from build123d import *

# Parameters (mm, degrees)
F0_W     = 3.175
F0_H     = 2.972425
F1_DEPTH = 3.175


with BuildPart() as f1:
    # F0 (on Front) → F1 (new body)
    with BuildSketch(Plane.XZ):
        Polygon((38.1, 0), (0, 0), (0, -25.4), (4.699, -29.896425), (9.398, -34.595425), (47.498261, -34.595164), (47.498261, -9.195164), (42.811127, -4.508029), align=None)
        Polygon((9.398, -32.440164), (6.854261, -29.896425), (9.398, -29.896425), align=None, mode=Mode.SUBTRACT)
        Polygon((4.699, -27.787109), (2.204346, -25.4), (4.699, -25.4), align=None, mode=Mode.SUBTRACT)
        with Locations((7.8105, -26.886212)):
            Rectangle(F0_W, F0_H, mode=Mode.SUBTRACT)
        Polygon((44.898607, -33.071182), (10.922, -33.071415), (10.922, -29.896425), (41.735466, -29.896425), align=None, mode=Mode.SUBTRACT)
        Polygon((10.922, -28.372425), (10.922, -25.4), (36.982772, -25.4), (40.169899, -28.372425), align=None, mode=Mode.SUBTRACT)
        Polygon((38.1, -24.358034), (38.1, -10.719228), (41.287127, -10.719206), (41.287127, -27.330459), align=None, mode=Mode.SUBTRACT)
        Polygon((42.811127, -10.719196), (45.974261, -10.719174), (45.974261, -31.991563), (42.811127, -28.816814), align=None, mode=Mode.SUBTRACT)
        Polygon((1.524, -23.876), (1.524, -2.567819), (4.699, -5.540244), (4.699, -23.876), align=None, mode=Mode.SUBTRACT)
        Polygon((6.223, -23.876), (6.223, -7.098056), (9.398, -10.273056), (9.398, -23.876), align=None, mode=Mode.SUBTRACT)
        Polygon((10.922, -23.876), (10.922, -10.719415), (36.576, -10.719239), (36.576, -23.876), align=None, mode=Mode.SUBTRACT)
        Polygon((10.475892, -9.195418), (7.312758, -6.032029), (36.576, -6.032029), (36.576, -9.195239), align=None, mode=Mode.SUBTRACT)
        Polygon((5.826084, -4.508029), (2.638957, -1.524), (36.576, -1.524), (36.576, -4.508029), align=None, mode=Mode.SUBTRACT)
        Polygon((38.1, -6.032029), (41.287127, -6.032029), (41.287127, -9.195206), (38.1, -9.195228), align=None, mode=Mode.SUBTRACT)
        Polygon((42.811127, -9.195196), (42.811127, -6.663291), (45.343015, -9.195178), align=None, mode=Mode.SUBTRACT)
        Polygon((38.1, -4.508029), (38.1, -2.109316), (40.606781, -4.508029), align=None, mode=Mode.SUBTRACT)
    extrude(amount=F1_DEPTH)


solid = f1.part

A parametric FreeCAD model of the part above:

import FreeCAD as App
import Part
import Sketcher

V = App.Vector
Q = App.Units.Quantity

doc = App.newDocument("Part")
body = doc.addObject("PartDesign::Body", "Body")

# Sketch on XZ plane
sketch1 = body.newObject("Sketcher::SketchObject", "Sketch")
sketch1.AttachmentSupport = (doc.getObject("XZ_Plane"), [""])
sketch1.MapMode = "FlatFace"
sketch1.addGeometry([
    Part.LineSegment(V(38.1, 0, 0), V(0, 0, 0)),  # 0
    Part.LineSegment(V(0, 0, 0), V(0, -25.4, 0)),  # 1
    Part.LineSegment(V(0, -25.4, 0), V(4.699, -29.896425, 0)),  # 2
    Part.LineSegment(V(4.699, -29.896425, 0), V(9.398, -34.595425, 0)),  # 3
    Part.LineSegment(V(9.398, -34.595425, 0), V(47.498261, -34.595164, 0)),  # 4
    Part.LineSegment(V(47.498261, -34.595164, 0), V(47.498261, -9.195164, 0)),  # 5
    Part.LineSegment(V(47.498261, -9.195164, 0), V(42.811127, -4.508029, 0)),  # 6
    Part.LineSegment(V(42.811127, -4.508029, 0), V(38.1, 0, 0)),  # 7
    Part.LineSegment(V(9.398, -29.896425, 0), V(9.398, -32.440164, 0)),  # 8
    Part.LineSegment(V(9.398, -32.440164, 0), V(6.854261, -29.896425, 0)),  # 9
    Part.LineSegment(V(6.854261, -29.896425, 0), V(9.398, -29.896425, 0)),  # 10
    Part.LineSegment(V(4.699, -25.4, 0), V(4.699, -27.787109, 0)),  # 11
    Part.LineSegment(V(4.699, -27.787109, 0), V(2.204346, -25.4, 0)),  # 12
    Part.LineSegment(V(2.204346, -25.4, 0), V(4.699, -25.4, 0)),  # 13
    Part.LineSegment(V(9.398, -28.372425, 0), V(6.223, -28.372425, 0)),  # 14
    Part.LineSegment(V(6.223, -28.372425, 0), V(6.223, -25.399999, 0)),  # 15
    Part.LineSegment(V(6.223, -25.399999, 0), V(9.398, -25.399999, 0)),  # 16
    Part.LineSegment(V(9.398, -25.399999, 0), V(9.398, -28.372425, 0)),  # 17
    Part.LineSegment(V(41.735466, -29.896425, 0), V(44.898607, -33.071182, 0)),  # 18
    Part.LineSegment(V(44.898607, -33.071182, 0), V(10.922, -33.071415, 0)),  # 19
    Part.LineSegment(V(10.922, -33.071415, 0), V(10.922, -29.896425, 0)),  # 20
    Part.LineSegment(V(10.922, -29.896425, 0), V(41.735466, -29.896425, 0)),  # 21
    Part.LineSegment(V(40.169899, -28.372425, 0), V(10.922, -28.372425, 0)),  # 22
    Part.LineSegment(V(10.922, -28.372425, 0), V(10.922, -25.4, 0)),  # 23
    Part.LineSegment(V(10.922, -25.4, 0), V(36.982772, -25.4, 0)),  # 24
    Part.LineSegment(V(36.982772, -25.4, 0), V(40.169899, -28.372425, 0)),  # 25
    Part.LineSegment(V(42.811127, -28.816814, 0), V(42.811127, -10.719196, 0)),  # 26
    Part.LineSegment(V(42.811127, -10.719196, 0), V(45.974261, -10.719174, 0)),  # 27
    Part.LineSegment(V(45.974261, -10.719174, 0), V(45.974261, -31.991563, 0)),  # 28
    Part.LineSegment(V(45.974261, -31.991563, 0), V(42.811127, -28.816814, 0)),  # 29
    Part.LineSegment(V(41.287127, -27.330459, 0), V(38.1, -24.358034, 0)),  # 30
    Part.LineSegment(V(38.1, -24.358034, 0), V(38.1, -10.719228, 0)),  # 31
    Part.LineSegment(V(38.1, -10.719228, 0), V(41.287127, -10.719206, 0)),  # 32
    Part.LineSegment(V(41.287127, -10.719206, 0), V(41.287127, -27.330459, 0)),  # 33
    Part.LineSegment(V(9.398, -23.876, 0), V(6.223, -23.876, 0)),  # 34
    Part.LineSegment(V(6.223, -23.876, 0), V(6.223, -7.098056, 0)),  # 35
    Part.LineSegment(V(6.223, -7.098056, 0), V(9.398, -10.273056, 0)),  # 36
    Part.LineSegment(V(9.398, -10.273056, 0), V(9.398, -23.876, 0)),  # 37
    Part.LineSegment(V(4.699, -23.876, 0), V(1.524, -23.876, 0)),  # 38
    Part.LineSegment(V(1.524, -23.876, 0), V(1.524, -2.567819, 0)),  # 39
    Part.LineSegment(V(1.524, -2.567819, 0), V(4.699, -5.540244, 0)),  # 40
    Part.LineSegment(V(4.699, -5.540244, 0), V(4.699, -23.876, 0)),  # 41
    Part.LineSegment(V(36.576, -23.876, 0), V(10.922, -23.876, 0)),  # 42
    Part.LineSegment(V(10.922, -23.876, 0), V(10.922, -10.719415, 0)),  # 43
    Part.LineSegment(V(10.922, -10.719415, 0), V(36.576, -10.719239, 0)),  # 44
    Part.LineSegment(V(36.576, -10.719239, 0), V(36.576, -23.876, 0)),  # 45
    Part.LineSegment(V(36.576, -9.195239, 0), V(10.475892, -9.195418, 0)),  # 46
    Part.LineSegment(V(10.475892, -9.195418, 0), V(7.312758, -6.032029, 0)),  # 47
    Part.LineSegment(V(7.312758, -6.032029, 0), V(36.576, -6.032029, 0)),  # 48
    Part.LineSegment(V(36.576, -6.032029, 0), V(36.576, -9.195239, 0)),  # 49
    Part.LineSegment(V(36.576, -4.508029, 0), V(5.826084, -4.508029, 0)),  # 50
    Part.LineSegment(V(5.826084, -4.508029, 0), V(2.638957, -1.524, 0)),  # 51
    Part.LineSegment(V(2.638957, -1.524, 0), V(36.576, -1.524, 0)),  # 52
    Part.LineSegment(V(36.576, -1.524, 0), V(36.576, -4.508029, 0)),  # 53
    Part.LineSegment(V(38.1, -9.195228, 0), V(38.1, -6.032029, 0)),  # 54
    Part.LineSegment(V(38.1, -6.032029, 0), V(41.287127, -6.032029, 0)),  # 55
    Part.LineSegment(V(41.287127, -6.032029, 0), V(41.287127, -9.195206, 0)),  # 56
    Part.LineSegment(V(41.287127, -9.195206, 0), V(38.1, -9.195228, 0)),  # 57
    Part.LineSegment(V(45.343015, -9.195178, 0), V(42.811127, -9.195196, 0)),  # 58
    Part.LineSegment(V(42.811127, -9.195196, 0), V(42.811127, -6.663291, 0)),  # 59
    Part.LineSegment(V(42.811127, -6.663291, 0), V(45.343015, -9.195178, 0)),  # 60
    Part.LineSegment(V(40.606781, -4.508029, 0), V(38.1, -4.508029, 0)),  # 61
    Part.LineSegment(V(38.1, -4.508029, 0), V(38.1, -2.109316, 0)),  # 62
    Part.LineSegment(V(38.1, -2.109316, 0), V(40.606781, -4.508029, 0)),  # 63
], False)
sketch1.addConstraint([
    Sketcher.Constraint("Coincident", 0, 2, 1, 1),
    Sketcher.Constraint("Coincident", 1, 2, 2, 1),
    Sketcher.Constraint("Coincident", 2, 2, 3, 1),
    Sketcher.Constraint("Coincident", 3, 2, 4, 1),
    Sketcher.Constraint("Coincident", 4, 2, 5, 1),
    Sketcher.Constraint("Coincident", 5, 2, 6, 1),
    Sketcher.Constraint("Coincident", 6, 2, 7, 1),
    Sketcher.Constraint("Coincident", 7, 2, 0, 1),
    Sketcher.Constraint("Coincident", 8, 2, 9, 1),
    Sketcher.Constraint("Coincident", 9, 2, 10, 1),
    Sketcher.Constraint("Coincident", 10, 2, 8, 1),
    Sketcher.Constraint("Coincident", 11, 2, 12, 1),
    Sketcher.Constraint("Coincident", 12, 2, 13, 1),
    Sketcher.Constraint("Coincident", 13, 2, 11, 1),
    Sketcher.Constraint("Coincident", 14, 2, 15, 1),
    Sketcher.Constraint("Coincident", 15, 2, 16, 1),
    Sketcher.Constraint("Coincident", 16, 2, 17, 1),
    Sketcher.Constraint("Coincident", 17, 2, 14, 1),
    Sketcher.Constraint("Coincident", 18, 2, 19, 1),
    Sketcher.Constraint("Coincident", 19, 2, 20, 1),
    Sketcher.Constraint("Coincident", 20, 2, 21, 1),
    Sketcher.Constraint("Coincident", 21, 2, 18, 1),
    Sketcher.Constraint("Coincident", 22, 2, 23, 1),
    Sketcher.Constraint("Coincident", 23, 2, 24, 1),
    Sketcher.Constraint("Coincident", 24, 2, 25, 1),
    Sketcher.Constraint("Coincident", 25, 2, 22, 1),
    Sketcher.Constraint("Coincident", 26, 2, 27, 1),
    Sketcher.Constraint("Coincident", 27, 2, 28, 1),
    Sketcher.Constraint("Coincident", 28, 2, 29, 1),
    Sketcher.Constraint("Coincident", 29, 2, 26, 1),
    Sketcher.Constraint("Coincident", 30, 2, 31, 1),
    Sketcher.Constraint("Coincident", 31, 2, 32, 1),
    Sketcher.Constraint("Coincident", 32, 2, 33, 1),
    Sketcher.Constraint("Coincident", 33, 2, 30, 1),
    Sketcher.Constraint("Coincident", 34, 2, 35, 1),
    Sketcher.Constraint("Coincident", 35, 2, 36, 1),
    Sketcher.Constraint("Coincident", 36, 2, 37, 1),
    Sketcher.Constraint("Coincident", 37, 2, 34, 1),
    Sketcher.Constraint("Coincident", 38, 2, 39, 1),
    Sketcher.Constraint("Coincident", 39, 2, 40, 1),
    Sketcher.Constraint("Coincident", 40, 2, 41, 1),
    Sketcher.Constraint("Coincident", 41, 2, 38, 1),
    Sketcher.Constraint("Coincident", 42, 2, 43, 1),
    Sketcher.Constraint("Coincident", 43, 2, 44, 1),
    Sketcher.Constraint("Coincident", 44, 2, 45, 1),
    Sketcher.Constraint("Coincident", 45, 2, 42, 1),
    Sketcher.Constraint("Coincident", 46, 2, 47, 1),
    Sketcher.Constraint("Coincident", 47, 2, 48, 1),
    Sketcher.Constraint("Coincident", 48, 2, 49, 1),
    Sketcher.Constraint("Coincident", 49, 2, 46, 1),
    Sketcher.Constraint("Coincident", 50, 2, 51, 1),
    Sketcher.Constraint("Coincident", 51, 2, 52, 1),
    Sketcher.Constraint("Coincident", 52, 2, 53, 1),
    Sketcher.Constraint("Coincident", 53, 2, 50, 1),
    Sketcher.Constraint("Coincident", 54, 2, 55, 1),
    Sketcher.Constraint("Coincident", 55, 2, 56, 1),
    Sketcher.Constraint("Coincident", 56, 2, 57, 1),
    Sketcher.Constraint("Coincident", 57, 2, 54, 1),
    Sketcher.Constraint("Coincident", 58, 2, 59, 1),
    Sketcher.Constraint("Coincident", 59, 2, 60, 1),
    Sketcher.Constraint("Coincident", 60, 2, 58, 1),
    Sketcher.Constraint("Coincident", 61, 2, 62, 1),
    Sketcher.Constraint("Coincident", 62, 2, 63, 1),
    Sketcher.Constraint("Coincident", 63, 2, 61, 1),
    Sketcher.Constraint("Horizontal", 0),
    Sketcher.Constraint("Vertical", 1),
    Sketcher.Constraint("Vertical", 5),
    Sketcher.Constraint("Vertical", 8),
    Sketcher.Constraint("Horizontal", 10),
    Sketcher.Constraint("Vertical", 11),
    Sketcher.Constraint("Horizontal", 13),
    Sketcher.Constraint("Horizontal", 14),
    Sketcher.Constraint("Vertical", 15),
    Sketcher.Constraint("Horizontal", 16),
    Sketcher.Constraint("Vertical", 17),
    Sketcher.Constraint("Vertical", 20),
    Sketcher.Constraint("Horizontal", 21),
    Sketcher.Constraint("Horizontal", 22),
    Sketcher.Constraint("Vertical", 23),
    Sketcher.Constraint("Horizontal", 24),
    Sketcher.Constraint("Vertical", 26),
    Sketcher.Constraint("Vertical", 28),
    Sketcher.Constraint("Vertical", 31),
    Sketcher.Constraint("Vertical", 33),
    Sketcher.Constraint("Horizontal", 34),
    Sketcher.Constraint("Vertical", 35),
    Sketcher.Constraint("Vertical", 37),
    Sketcher.Constraint("Horizontal", 38),
    Sketcher.Constraint("Vertical", 39),
    Sketcher.Constraint("Vertical", 41),
    Sketcher.Constraint("Horizontal", 42),
    Sketcher.Constraint("Vertical", 43),
    Sketcher.Constraint("Vertical", 45),
    Sketcher.Constraint("Horizontal", 48),
    Sketcher.Constraint("Vertical", 49),
    Sketcher.Constraint("Horizontal", 50),
    Sketcher.Constraint("Horizontal", 52),
    Sketcher.Constraint("Vertical", 53),
    Sketcher.Constraint("Vertical", 54),
    Sketcher.Constraint("Horizontal", 55),
    Sketcher.Constraint("Vertical", 56),
    Sketcher.Constraint("Vertical", 59),
    Sketcher.Constraint("Horizontal", 61),
    Sketcher.Constraint("Vertical", 62),
    Sketcher.Constraint("Coincident", 0, 2, -1, 1),
    Sketcher.Constraint("Parallel", 3, 6),
    Sketcher.Constraint("Parallel", 2, 7),
    Sketcher.Constraint("Parallel", 6, 9),
    Sketcher.Constraint("Parallel", 7, 12),
    Sketcher.Constraint("Parallel", 4, 19),
    Sketcher.Constraint("Parallel", 19, 27),
    Sketcher.Constraint("Parallel", 18, 29),
    Sketcher.Constraint("Parallel", 25, 30),
    Sketcher.Constraint("Parallel", 27, 32),
    Sketcher.Constraint("Parallel", 9, 36),
    Sketcher.Constraint("Parallel", 32, 44),
    Sketcher.Constraint("Parallel", 44, 46),
    Sketcher.Constraint("Parallel", 46, 57),
    Sketcher.Constraint("Parallel", 57, 58),
    Sketcher.Constraint("Parallel", 36, 60),
    Sketcher.Constraint("Parallel", 12, 63),
    Sketcher.Constraint("Horizontal", 2, 2, 9, 2),
    Sketcher.Constraint("Horizontal", 1, 2, 12, 2),
    Sketcher.Constraint("Horizontal", 13, 2, 15, 2),
    Sketcher.Constraint("Horizontal", 10, 2, 20, 2),
    Sketcher.Constraint("Horizontal", 17, 2, 22, 2),
    Sketcher.Constraint("Horizontal", 16, 2, 23, 2),
    Sketcher.Constraint("Horizontal", 37, 2, 38, 2),
    Sketcher.Constraint("Horizontal", 41, 2, 42, 2),
    Sketcher.Constraint("Horizontal", 6, 2, 50, 2),
    Sketcher.Constraint("Horizontal", 48, 2, 54, 2),
    Sketcher.Constraint("Horizontal", 53, 2, 61, 2),
    Sketcher.Constraint("Vertical", 3, 2, 8, 2),
    Sketcher.Constraint("Vertical", 2, 2, 11, 2),
    Sketcher.Constraint("Vertical", 10, 2, 16, 2),
    Sketcher.Constraint("Vertical", 20, 2, 22, 2),
    Sketcher.Constraint("Vertical", 6, 2, 26, 2),
    Sketcher.Constraint("Vertical", 7, 2, 30, 2),
    Sketcher.Constraint("Vertical", 15, 2, 34, 2),
    Sketcher.Constraint("Vertical", 17, 2, 36, 2),
    Sketcher.Constraint("Vertical", 13, 2, 40, 2),
    Sketcher.Constraint("Vertical", 23, 2, 42, 2),
    Sketcher.Constraint("Vertical", 45, 2, 48, 2),
    Sketcher.Constraint("Vertical", 49, 2, 52, 2),
    Sketcher.Constraint("Vertical", 31, 2, 54, 2),
    Sketcher.Constraint("Vertical", 33, 2, 55, 2),
    Sketcher.Constraint("Vertical", 29, 2, 58, 2),
    Sketcher.Constraint("Vertical", 57, 2, 61, 2),
    Sketcher.Constraint("Equal", 34, 38),
    Sketcher.Constraint("Equal", 1, 5),
    Sketcher.Constraint("Equal", 10, 8),
    Sketcher.Constraint("Equal", 25, 30),
    Sketcher.Constraint("DistanceY", 1, 2, 1, 1, Q("1 in")),
    Sketcher.Constraint("DistanceX", 0, 2, 0, 1, Q("1.5 in")),
    Sketcher.Constraint("DistanceX", 42, 2, 42, 1, Q("1.01 in")),
    Sketcher.Constraint("DistanceX", 14, 2, 14, 1, Q("0.125 in")),
    Sketcher.Constraint("DistanceX", -1, 1, 3, 2, Q("0.37 in")),
    Sketcher.Constraint("DistanceX", -1, 1, 19, 2, Q("0.43 in")),
    Sketcher.Constraint("DistanceY", 34, 2, -1, 1, Q("0.94 in")),
    Sketcher.Constraint("DistanceX", -1, 1, 38, 2, Q("0.06 in")),
    Sketcher.Constraint("DistanceY", 51, 2, -1, 1, Q("0.06 in")),
    Sketcher.Constraint("DistanceX", 22, 2, 22, 1, 29.247899),
    Sketcher.Constraint("DistanceY", 54, 1, 54, 2, 3.163199),
    Sketcher.Constraint("DistanceX", 10, 1, 10, 2, 2.543739),
    Sketcher.Constraint("DistanceX", 24, 1, 24, 2, 26.060772),
    Sketcher.Constraint("DistanceX", 61, 2, 61, 1, 2.506781),
    Sketcher.Constraint("DistanceY", 11, 2, 11, 1, 2.387109),
    Sketcher.Constraint("DistanceY", 20, 1, 20, 2, 3.17499),
    Sketcher.Constraint("DistanceY", 26, 1, 26, 2, 18.097618),
    Sketcher.Constraint("DistanceY", 28, 2, 28, 1, 21.272389),
    Sketcher.Constraint("DistanceY", 39, 1, 39, 2, 21.308181),
    Sketcher.Constraint("DistanceY", 45, 2, 45, 1, 13.156761),
    Sketcher.Constraint("DistanceY", 49, 2, 49, 1, 3.16321),
    Sketcher.Constraint("DistanceY", 53, 2, 53, 1, 2.984029),
    Sketcher.Constraint("Distance", 4, 38.100261),
    Sketcher.Constraint("Distance", 6, 6.628609),
    Sketcher.Constraint("Distance", 18, 4.481578),
    Sketcher.Constraint("Distance", 46, 26.100108),
    Sketcher.Constraint("Distance", 51, 4.366029),
    Sketcher.Constraint("Distance", 58, 2.531888),
    Sketcher.Constraint("DistanceX", 21, 1, 21, 2, 30.813466),
    Sketcher.Constraint("DistanceX", 48, 1, 48, 2, 29.263242),
    Sketcher.Constraint("DistanceX", 50, 2, 50, 1, 30.749916),
    Sketcher.Constraint("DistanceY", 15, 1, 15, 2, 2.972425),
    Sketcher.Constraint("DistanceY", 31, 1, 31, 2, 13.638806),
    Sketcher.Constraint("DistanceY", 35, 1, 35, 2, 16.777944),
    Sketcher.Constraint("DistanceY", 41, 2, 41, 1, 18.335756),
    Sketcher.Constraint("DistanceY", 33, 2, -1, 1, 27.330459),
    Sketcher.Constraint("DistanceY", 47, 2, -1, 1, 6.032029),
    Sketcher.Constraint("DistanceY", 59, 2, -1, 1, 6.663291),
    Sketcher.Constraint("DistanceY", 26, 2, -1, 1, 10.719196),
])
pad1 = body.newObject("PartDesign::Pad", "Pad")
pad1.Profile = sketch1
pad1.Length = Q("0.125 in")

doc.recompute()
